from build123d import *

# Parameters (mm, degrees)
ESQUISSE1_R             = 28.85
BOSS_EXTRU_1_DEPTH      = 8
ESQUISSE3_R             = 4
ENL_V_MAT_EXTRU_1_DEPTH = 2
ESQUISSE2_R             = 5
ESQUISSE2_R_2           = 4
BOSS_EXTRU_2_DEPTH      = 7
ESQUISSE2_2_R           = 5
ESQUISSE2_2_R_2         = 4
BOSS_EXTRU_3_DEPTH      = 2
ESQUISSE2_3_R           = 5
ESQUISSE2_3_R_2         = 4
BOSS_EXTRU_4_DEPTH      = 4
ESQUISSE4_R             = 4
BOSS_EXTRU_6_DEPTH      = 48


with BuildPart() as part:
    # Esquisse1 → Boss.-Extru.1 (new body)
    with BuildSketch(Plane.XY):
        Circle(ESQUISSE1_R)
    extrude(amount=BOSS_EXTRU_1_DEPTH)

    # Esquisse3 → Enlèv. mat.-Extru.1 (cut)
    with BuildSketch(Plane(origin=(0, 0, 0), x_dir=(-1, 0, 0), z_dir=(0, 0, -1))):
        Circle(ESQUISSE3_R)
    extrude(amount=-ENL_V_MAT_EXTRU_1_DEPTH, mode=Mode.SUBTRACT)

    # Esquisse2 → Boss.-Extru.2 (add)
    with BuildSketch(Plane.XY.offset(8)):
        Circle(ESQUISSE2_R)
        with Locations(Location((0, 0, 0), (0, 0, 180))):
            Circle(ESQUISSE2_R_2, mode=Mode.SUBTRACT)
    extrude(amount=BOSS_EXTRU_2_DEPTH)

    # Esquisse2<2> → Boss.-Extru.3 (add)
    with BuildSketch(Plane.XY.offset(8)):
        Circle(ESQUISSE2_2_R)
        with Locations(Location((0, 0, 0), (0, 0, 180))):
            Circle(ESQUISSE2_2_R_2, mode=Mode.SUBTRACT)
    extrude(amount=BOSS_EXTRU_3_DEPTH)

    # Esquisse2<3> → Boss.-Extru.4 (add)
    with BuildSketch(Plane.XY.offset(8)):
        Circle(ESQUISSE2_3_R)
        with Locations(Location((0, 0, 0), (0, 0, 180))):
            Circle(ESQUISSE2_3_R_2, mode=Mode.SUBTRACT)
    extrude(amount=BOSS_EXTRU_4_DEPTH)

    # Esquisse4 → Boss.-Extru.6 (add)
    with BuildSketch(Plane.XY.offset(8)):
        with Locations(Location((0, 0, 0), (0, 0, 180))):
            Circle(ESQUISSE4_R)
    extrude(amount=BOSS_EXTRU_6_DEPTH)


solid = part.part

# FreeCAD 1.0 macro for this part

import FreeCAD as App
import Part
import Sketcher

doc = App.newDocument("Part")
body = doc.addObject("PartDesign::Body", "Body")

# Sketch on XY plane
sketch1 = body.newObject("Sketcher::SketchObject", "Sketch")
sketch1.AttachmentSupport = (doc.getObject("XY_Plane"), [""])
sketch1.MapMode = "FlatFace"
sketch1.addGeometry(Part.Circle(App.Vector(0, 0, 0), App.Vector(0, 0, 1), 28.85), False)
sketch1.addConstraint(Sketcher.Constraint("Coincident", 0, 3, -1, 1))
sketch1.addConstraint(Sketcher.Constraint("Diameter", 0, 57.7))
pad1 = body.newObject("PartDesign::Pad", "Pad")
pad1.Profile = sketch1
pad1.Length = 8

# Sketch on XY plane
sketch2 = body.newObject("Sketcher::SketchObject", "Sketch001")
sketch2.AttachmentSupport = (doc.getObject("XY_Plane"), [""])
sketch2.MapMode = "FlatFace"
sketch2.addGeometry(Part.Circle(App.Vector(0, 0, 0), App.Vector(0, 0, 1), 4), False)
sketch2.addConstraint(Sketcher.Constraint("Coincident", 0, 3, -1, 1))
sketch2.addConstraint(Sketcher.Constraint("Diameter", 0, 8.0))
pocket1 = body.newObject("PartDesign::Pocket", "Pocket")
pocket1.Profile = sketch2
pocket1.Length = 2
pocket1.Reversed = True

# Sketch on XY plane
sketch3 = body.newObject("Sketcher::SketchObject", "Sketch002")
sketch3.AttachmentSupport = (doc.getObject("XY_Plane"), [""])
sketch3.MapMode = "FlatFace"
sketch3.AttachmentOffset = App.Placement(App.Vector(0, 0, 8), App.Rotation())
sketch3.addGeometry(Part.Circle(App.Vector(0, 0, 0), App.Vector(0, 0, 1), 5), False)
sketch3.addGeometry(Part.Circle(App.Vector(0, 0, 0), App.Vector(0, 0, 1), 4), False)
sketch3.addConstraint(Sketcher.Constraint("Coincident", 0, 3, -1, 1))
sketch3.addConstraint(Sketcher.Constraint("Coincident", 1, 3, -1, 1))
sketch3.addConstraint(Sketcher.Constraint("Diameter", 0, 10.0))
sketch3.addConstraint(Sketcher.Constraint("Diameter", 1, 8.0))
pad2 = body.newObject("PartDesign::Pad", "Pad001")
pad2.Profile = sketch3
pad2.Length = 7

# Sketch on XY plane
sketch4 = body.newObject("Sketcher::SketchObject", "Sketch003")
sketch4.AttachmentSupport = (doc.getObject("XY_Plane"), [""])
sketch4.MapMode = "FlatFace"
sketch4.AttachmentOffset = App.Placement(App.Vector(0, 0, 8), App.Rotation())
sketch4.addGeometry(Part.Circle(App.Vector(0, 0, 0), App.Vector(0, 0, 1), 5), False)
sketch4.addGeometry(Part.Circle(App.Vector(0, 0, 0), App.Vector(0, 0, 1), 4), False)
sketch4.addConstraint(Sketcher.Constraint("Coincident", 0, 3, -1, 1))
sketch4.addConstraint(Sketcher.Constraint("Coincident", 1, 3, -1, 1))
sketch4.addConstraint(Sketcher.Constraint("Diameter", 0, 10.0))
sketch4.addConstraint(Sketcher.Constraint("Diameter", 1, 8.0))
pad3 = body.newObject("PartDesign::Pad", "Pad002")
pad3.Profile = sketch4
pad3.Length = 2

# Sketch on XY plane
sketch5 = body.newObject("Sketcher::SketchObject", "Sketch004")
sketch5.AttachmentSupport = (doc.getObject("XY_Plane"), [""])
sketch5.MapMode = "FlatFace"
sketch5.AttachmentOffset = App.Placement(App.Vector(0, 0, 8), App.Rotation())
sketch5.addGeometry(Part.Circle(App.Vector(0, 0, 0), App.Vector(0, 0, 1), 5), False)
sketch5.addGeometry(Part.Circle(App.Vector(0, 0, 0), App.Vector(0, 0, 1), 4), False)
sketch5.addConstraint(Sketcher.Constraint("Coincident", 0, 3, -1, 1))
sketch5.addConstraint(Sketcher.Constraint("Coincident", 1, 3, -1, 1))
sketch5.addConstraint(Sketcher.Constraint("Diameter", 0, 10.0))
sketch5.addConstraint(Sketcher.Constraint("Diameter", 1, 8.0))
pad4 = body.newObject("PartDesign::Pad", "Pad003")
pad4.Profile = sketch5
pad4.Length = 4

# Sketch on XY plane
sketch6 = body.newObject("Sketcher::SketchObject", "Sketch005")
sketch6.AttachmentSupport = (doc.getObject("XY_Plane"), [""])
sketch6.MapMode = "FlatFace"
sketch6.AttachmentOffset = App.Placement(App.Vector(0, 0, 8), App.Rotation())
sketch6.addGeometry(Part.Circle(App.Vector(0, 0, 0), App.Vector(0, 0, 1), 4), False)
sketch6.addConstraint(Sketcher.Constraint("Coincident", 0, 3, -1, 1))
sketch6.addConstraint(Sketcher.Constraint("Diameter", 0, 8.0))
pad5 = body.newObject("PartDesign::Pad", "Pad004")
pad5.Profile = sketch6
pad5.Length = 48

doc.recompute()
